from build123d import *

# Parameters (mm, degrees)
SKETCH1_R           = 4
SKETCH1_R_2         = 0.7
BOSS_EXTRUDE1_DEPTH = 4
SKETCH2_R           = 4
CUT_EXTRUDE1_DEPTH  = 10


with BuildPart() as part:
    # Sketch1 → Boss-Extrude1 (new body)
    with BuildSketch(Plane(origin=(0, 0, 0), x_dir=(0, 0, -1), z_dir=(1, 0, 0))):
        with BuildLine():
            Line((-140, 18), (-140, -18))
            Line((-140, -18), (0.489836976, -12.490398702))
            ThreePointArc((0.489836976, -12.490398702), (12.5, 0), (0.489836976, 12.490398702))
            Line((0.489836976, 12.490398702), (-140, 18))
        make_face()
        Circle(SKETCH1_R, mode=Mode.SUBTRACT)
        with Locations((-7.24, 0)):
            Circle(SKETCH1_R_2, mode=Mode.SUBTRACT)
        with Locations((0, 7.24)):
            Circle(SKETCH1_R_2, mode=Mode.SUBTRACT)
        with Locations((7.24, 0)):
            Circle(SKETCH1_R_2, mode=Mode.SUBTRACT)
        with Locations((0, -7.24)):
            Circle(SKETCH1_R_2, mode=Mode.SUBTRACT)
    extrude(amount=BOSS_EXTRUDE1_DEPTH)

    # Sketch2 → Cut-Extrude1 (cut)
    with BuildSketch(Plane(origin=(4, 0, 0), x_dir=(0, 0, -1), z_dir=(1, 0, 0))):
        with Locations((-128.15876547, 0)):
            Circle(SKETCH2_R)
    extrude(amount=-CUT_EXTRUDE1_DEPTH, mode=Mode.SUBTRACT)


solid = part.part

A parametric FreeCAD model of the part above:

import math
import FreeCAD as App
import Part
import Sketcher
from FreeCAD import Vector
Q = App.Units.Quantity

doc = App.newDocument("Part")
body = doc.addObject("PartDesign::Body", "Body")

sketch1 = body.newObject("Sketcher::SketchObject", "Sketch")
sketch1.AttachmentSupport = (doc.getObject("YZ_Plane"), [""])
sketch1.MapMode = "FlatFace"
sketch1.addGeometry([
    Part.LineSegment(Vector(18, 140, 0), Vector(-18, 140, 0)),
    Part.LineSegment(Vector(-18, 140, 0), Vector(-12.5, -0.5, 0)),
    Part.ArcOfCircle(Part.Circle(Vector(0, 0, 0), Vector(0, 0, 1), 12.5), math.radians(-178), math.radians(-2)),
    Part.LineSegment(Vector(12.5, -0.5, 0), Vector(18, 140, 0)),
    Part.Circle(Vector(-7.2, 0, 0), Vector(0, 0, 1), 0.7),
    Part.Circle(Vector(0, 7.2, 0), Vector(0, 0, 1), 0.7),
    Part.Circle(Vector(0, 0, 0), Vector(0, 0, 1), 4),
    Part.Circle(Vector(0, -7.2, 0), Vector(0, 0, 1), 0.7),
    Part.Circle(Vector(7.2, 0, 0), Vector(0, 0, 1), 0.7),
], False)
sketch1.addConstraint([
    Sketcher.Constraint("Coincident", 0, 2, 1, 1),
    Sketcher.Constraint("Tangent", 1, 2, 2, 1),
    Sketcher.Constraint("Tangent", 2, 2, 3, 1),
    Sketcher.Constraint("Coincident", 3, 2, 0, 1),
    Sketcher.Constraint("Horizontal", 0),
    Sketcher.Constraint("Coincident", 2, 3, -1, 1),
    Sketcher.Constraint("Coincident", 6, 3, -1, 1),
    Sketcher.Constraint("Equal", 4, 5),
    Sketcher.Constraint("Equal", 5, 7),
    Sketcher.Constraint("Equal", 7, 8),
    Sketcher.Constraint("Symmetric", 5, 3, 7, 3, -1, 1),
    Sketcher.Constraint("Symmetric", 4, 3, 8, 3, -1, 1),
    Sketcher.Constraint("PointOnObject", 4, 3, -1),
    Sketcher.Constraint("PointOnObject", 5, 3, -2),
    Sketcher.Constraint("Horizontal", 1, 2, 2, 2),
    Sketcher.Constraint("Diameter", 6, Q("8 mm")),
    Sketcher.Constraint("Diameter", 4, Q("1.4 mm")),
    Sketcher.Constraint("Radius", 2, Q("12.5 mm")),
    Sketcher.Constraint("DistanceX", 0, 2, 0, 1, Q("36 mm")),
    Sketcher.Constraint("DistanceY", -1, 1, 0, 2, Q("140 mm")),
    Sketcher.Constraint("DistanceX", 4, 3, -1, 1, Q("7.24 mm")),
    Sketcher.Constraint("DistanceY", -1, 1, 5, 3, Q("7.24 mm")),
])
pad1 = body.newObject("PartDesign::Pad", "Pad")
pad1.Profile = sketch1
pad1.Length = 4

sketch2 = body.newObject("Sketcher::SketchObject", "Sketch001")
sketch2.AttachmentSupport = (doc.getObject("YZ_Plane"), [""])
sketch2.MapMode = "FlatFace"
sketch2.AttachmentOffset = App.Placement(Vector(0, 0, 4), App.Rotation())
sketch2.addGeometry(Part.Circle(Vector(0, 128.2, 0), Vector(0, 0, 1), 4), False)
sketch2.addConstraint([
    Sketcher.Constraint("PointOnObject", 0, 3, -2),
    Sketcher.Constraint("Diameter", 0, Q("8 mm")),
    Sketcher.Constraint("DistanceY", -1, 1, 0, 3, Q("128.158765 mm")),
])
pocket1 = body.newObject("PartDesign::Pocket", "Pocket")
pocket1.Profile = sketch2
pocket1.Length = 10

doc.recompute()
